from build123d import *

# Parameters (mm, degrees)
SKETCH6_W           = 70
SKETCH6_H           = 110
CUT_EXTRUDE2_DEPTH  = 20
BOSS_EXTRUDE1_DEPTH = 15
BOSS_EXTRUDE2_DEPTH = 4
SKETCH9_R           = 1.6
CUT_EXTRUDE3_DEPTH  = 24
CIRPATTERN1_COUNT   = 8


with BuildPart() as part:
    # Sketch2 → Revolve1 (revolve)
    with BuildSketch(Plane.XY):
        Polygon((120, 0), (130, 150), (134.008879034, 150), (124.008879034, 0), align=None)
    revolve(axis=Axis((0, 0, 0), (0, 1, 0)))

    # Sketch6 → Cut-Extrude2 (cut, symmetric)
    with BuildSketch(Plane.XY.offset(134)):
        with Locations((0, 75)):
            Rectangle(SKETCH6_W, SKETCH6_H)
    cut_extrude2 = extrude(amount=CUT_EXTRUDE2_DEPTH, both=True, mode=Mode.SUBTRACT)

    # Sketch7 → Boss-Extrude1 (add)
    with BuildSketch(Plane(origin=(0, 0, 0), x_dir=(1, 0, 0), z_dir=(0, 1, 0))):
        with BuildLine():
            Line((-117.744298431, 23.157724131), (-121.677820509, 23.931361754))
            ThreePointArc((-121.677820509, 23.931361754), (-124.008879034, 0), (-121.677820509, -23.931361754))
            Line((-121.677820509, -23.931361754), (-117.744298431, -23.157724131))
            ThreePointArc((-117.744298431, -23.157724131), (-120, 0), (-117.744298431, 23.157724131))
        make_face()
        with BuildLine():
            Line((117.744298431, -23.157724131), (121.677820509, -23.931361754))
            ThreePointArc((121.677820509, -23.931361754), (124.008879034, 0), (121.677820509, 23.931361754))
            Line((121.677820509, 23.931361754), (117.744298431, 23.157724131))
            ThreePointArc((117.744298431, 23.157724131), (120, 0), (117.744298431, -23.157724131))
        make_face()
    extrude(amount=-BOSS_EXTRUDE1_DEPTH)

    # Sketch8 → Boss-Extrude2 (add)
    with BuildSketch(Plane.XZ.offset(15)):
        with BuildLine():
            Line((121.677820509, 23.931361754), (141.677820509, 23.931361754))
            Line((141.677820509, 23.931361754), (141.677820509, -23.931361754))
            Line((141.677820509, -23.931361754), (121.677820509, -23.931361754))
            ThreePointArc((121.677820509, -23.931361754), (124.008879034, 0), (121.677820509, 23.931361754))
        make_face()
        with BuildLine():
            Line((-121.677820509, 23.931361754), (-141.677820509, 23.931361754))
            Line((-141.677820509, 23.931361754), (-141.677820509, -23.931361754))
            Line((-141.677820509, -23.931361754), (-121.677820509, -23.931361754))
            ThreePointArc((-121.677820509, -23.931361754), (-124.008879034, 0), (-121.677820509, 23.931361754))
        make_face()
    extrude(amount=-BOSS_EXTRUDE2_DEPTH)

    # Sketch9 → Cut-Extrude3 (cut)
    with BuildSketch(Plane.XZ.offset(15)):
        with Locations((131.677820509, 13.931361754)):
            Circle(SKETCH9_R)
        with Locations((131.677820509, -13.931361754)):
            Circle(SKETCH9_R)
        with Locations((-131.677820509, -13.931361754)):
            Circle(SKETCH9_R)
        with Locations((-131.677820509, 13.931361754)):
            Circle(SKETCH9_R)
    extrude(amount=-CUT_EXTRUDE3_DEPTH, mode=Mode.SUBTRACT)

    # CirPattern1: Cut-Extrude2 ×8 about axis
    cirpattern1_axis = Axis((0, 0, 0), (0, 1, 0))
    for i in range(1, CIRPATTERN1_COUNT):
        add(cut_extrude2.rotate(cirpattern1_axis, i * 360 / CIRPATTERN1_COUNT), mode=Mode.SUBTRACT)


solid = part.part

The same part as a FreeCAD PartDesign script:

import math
import FreeCAD as App
import Part
import Sketcher
Q = App.Units.Quantity


def add_polygon(sketch, points):
    """Adds a closed chain of lines whose ends are joined by coincident constraints."""
    first, n = sketch.GeometryCount, len(points)
    for a, b in zip(points, points[1:] + points[:1]):
        sketch.addGeometry(Part.LineSegment(App.Vector(*a, 0), App.Vector(*b, 0)), False)
    for i in range(n):
        sketch.addConstraint(Sketcher.Constraint("Coincident", first + i, 2, first + (i + 1) % n, 1))

doc = App.newDocument("Part")
body = doc.addObject("PartDesign::Body", "Body")

sketch1 = body.newObject("Sketcher::SketchObject", "Sketch")
sketch1.AttachmentSupport = (doc.getObject("XY_Plane"), [""])
sketch1.MapMode = "FlatFace"
add_polygon(sketch1, [(130, 150), (120, 0), (124.008879, 0), (134.008879, 150)])
sketch1.addConstraint(Sketcher.Constraint("Horizontal", 1))
sketch1.addConstraint(Sketcher.Constraint("Horizontal", 3))
sketch1.addConstraint(Sketcher.Constraint("PointOnObject", 0, 2, -1))
sketch1.addConstraint(Sketcher.Constraint("Parallel", 0, 2))
sketch1.addConstraint(Sketcher.Constraint("DistanceX", -1, 1, 0, 2, Q("120 mm")))
sketch1.addConstraint(Sketcher.Constraint("DistanceY", -1, 1, 2, 2, Q("150 mm")))
sketch1.addConstraint(Sketcher.Constraint("DistanceX", -1, 1, 3, 2, Q("130 mm")))
sketch1.addConstraint(Sketcher.Constraint("DistanceX", 1, 1, 1, 2, Q("4.008879 mm")))
revolution = body.newObject("PartDesign::Revolution", "Revolution")
revolution.Profile = sketch1
revolution.ReferenceAxis = (sketch1, ["V_Axis"])
revolution.Angle = 360

sketch2 = body.newObject("Sketcher::SketchObject", "Sketch001")
sketch2.AttachmentSupport = (doc.getObject("XY_Plane"), [""])
sketch2.MapMode = "FlatFace"
sketch2.AttachmentOffset = App.Placement(App.Vector(0, 0, 134), App.Rotation())
add_polygon(sketch2, [(-35, 130), (-35, 20), (35, 20), (35, 130)])
sketch2.addConstraint(Sketcher.Constraint("Vertical", 0))
sketch2.addConstraint(Sketcher.Constraint("Horizontal", 1))
sketch2.addConstraint(Sketcher.Constraint("Vertical", 2))
sketch2.addConstraint(Sketcher.Constraint("Horizontal", 3))
sketch2.addConstraint(Sketcher.Constraint("DistanceX", 1, 1, 1, 2, Q("70 mm")))
sketch2.addConstraint(Sketcher.Constraint("DistanceY", 0, 2, 0, 1, Q("110 mm")))
sketch2.addConstraint(Sketcher.Constraint("DistanceX", 0, 2, -1, 1, Q("35 mm")))
sketch2.addConstraint(Sketcher.Constraint("DistanceY", -1, 1, 0, 2, Q("20 mm")))
pocket1 = body.newObject("PartDesign::Pocket", "Pocket")
pocket1.Profile = sketch2
pocket1.Length = 40
pocket1.Midplane = True

sketch3 = body.newObject("Sketcher::SketchObject", "Sketch002")
sketch3.AttachmentSupport = (doc.getObject("XZ_Plane"), [""])
sketch3.MapMode = "FlatFace"
sketch3.addGeometry(Part.LineSegment(App.Vector(-117.744298, -23.157724, 0), App.Vector(-121.677821, -23.931362, 0)), False)
sketch3.addGeometry(Part.ArcOfCircle(Part.Circle(App.Vector(0, 0, 0), App.Vector(0, 0, 1), 124.008879), math.radians(168.873195), math.radians(191.126805)), False)
sketch3.addGeometry(Part.LineSegment(App.Vector(-121.677821, 23.931362, 0), App.Vector(-117.744298, 23.157724, 0)), False)
sketch3.addGeometry(Part.ArcOfCircle(Part.Circle(App.Vector(0, 0, 0), App.Vector(0, 0, 1), 120), math.radians(168.873195), math.radians(191.126805)), False)
sketch3.addGeometry(Part.LineSegment(App.Vector(117.744298, 23.157724, 0), App.Vector(121.677821, 23.931362, 0)), False)
sketch3.addGeometry(Part.ArcOfCircle(Part.Circle(App.Vector(0, 0, 0), App.Vector(0, 0, 1), 124.008879), math.radians(-11.126805), math.radians(11.126805)), False)
sketch3.addGeometry(Part.LineSegment(App.Vector(121.677821, -23.931362, 0), App.Vector(117.744298, -23.157724, 0)), False)
sketch3.addGeometry(Part.ArcOfCircle(Part.Circle(App.Vector(0, 0, 0), App.Vector(0, 0, 1), 120), math.radians(-11.126805), math.radians(11.126805)), False)
sketch3.addConstraint(Sketcher.Constraint("Coincident", 0, 2, 1, 2))
sketch3.addConstraint(Sketcher.Constraint("Coincident", 1, 1, 2, 1))
sketch3.addConstraint(Sketcher.Constraint("Coincident", 2, 2, 3, 1))
sketch3.addConstraint(Sketcher.Constraint("Coincident", 3, 2, 0, 1))
sketch3.addConstraint(Sketcher.Constraint("Coincident", 4, 2, 5, 2))
sketch3.addConstraint(Sketcher.Constraint("Coincident", 5, 1, 6, 1))
sketch3.addConstraint(Sketcher.Constraint("Coincident", 6, 2, 7, 1))
sketch3.addConstraint(Sketcher.Constraint("Coincident", 7, 2, 4, 1))
sketch3.addConstraint(Sketcher.Constraint("Coincident", 1, 3, -1, 1))
sketch3.addConstraint(Sketcher.Constraint("Coincident", 3, 3, -1, 1))
sketch3.addConstraint(Sketcher.Constraint("Coincident", 5, 3, -1, 1))
sketch3.addConstraint(Sketcher.Constraint("Coincident", 7, 3, -1, 1))
sketch3.addConstraint(Sketcher.Constraint("Equal", 1, 5))
sketch3.addConstraint(Sketcher.Constraint("Equal", 3, 7))
sketch3.addConstraint(Sketcher.Constraint("Parallel", 0, 4))
sketch3.addConstraint(Sketcher.Constraint("Parallel", 2, 6))
sketch3.addConstraint(Sketcher.Constraint("Horizontal", 1, 1, 4, 2))
sketch3.addConstraint(Sketcher.Constraint("Horizontal", 0, 2, 5, 1))
sketch3.addConstraint(Sketcher.Constraint("Horizontal", 3, 2, 6, 2))
sketch3.addConstraint(Sketcher.Constraint("Vertical", 0, 2, 1, 1))
sketch3.addConstraint(Sketcher.Constraint("Radius", 3, Q("120 mm")))
sketch3.addConstraint(Sketcher.Constraint("Radius", 1, Q("124.008879 mm")))
sketch3.addConstraint(Sketcher.Constraint("DistanceX", 2, 2, -1, 1, Q("117.744298 mm")))
sketch3.addConstraint(Sketcher.Constraint("DistanceX", 0, 2, -1, 1, Q("121.677821 mm")))
pad1 = body.newObject("PartDesign::Pad", "Pad")
pad1.Profile = sketch3
pad1.Length = 15

sketch4 = body.newObject("Sketcher::SketchObject", "Sketch003")
sketch4.AttachmentSupport = (doc.getObject("XZ_Plane"), [""])
sketch4.MapMode = "FlatFace"
sketch4.AttachmentOffset = App.Placement(App.Vector(0, 0, 15), App.Rotation())
sketch4.addGeometry(Part.LineSegment(App.Vector(141.677821, 23.931362, 0), App.Vector(121.677821, 23.931362, 0)), False)
sketch4.addGeometry(Part.ArcOfCircle(Part.Circle(App.Vector(0, 0, 0), App.Vector(0, 0, 1), 124.008879), math.radians(-11.126805), math.radians(11.126805)), False)
sketch4.addGeometry(Part.LineSegment(App.Vector(121.677821, -23.931362, 0), App.Vector(141.677821, -23.931362, 0)), False)
sketch4.addGeometry(Part.LineSegment(App.Vector(141.677821, -23.931362, 0), App.Vector(141.677821, 23.931362, 0)), False)
sketch4.addGeometry(Part.LineSegment(App.Vector(-121.677821, 23.931362, 0), App.Vector(-141.677821, 23.931362, 0)), False)
sketch4.addGeometry(Part.LineSegment(App.Vector(-141.677821, 23.931362, 0), App.Vector(-141.677821, -23.931362, 0)), False)
sketch4.addGeometry(Part.LineSegment(App.Vector(-141.677821, -23.931362, 0), App.Vector(-121.677821, -23.931362, 0)), False)
sketch4.addGeometry(Part.ArcOfCircle(Part.Circle(App.Vector(0, 0, 0), App.Vector(0, 0, 1), 124.008879), math.radians(168.873195), math.radians(191.126805)), False)
sketch4.addConstraint(Sketcher.Constraint("Coincident", 0, 2, 1, 2))
sketch4.addConstraint(Sketcher.Constraint("Coincident", 1, 1, 2, 1))
sketch4.addConstraint(Sketcher.Constraint("Coincident", 2, 2, 3, 1))
sketch4.addConstraint(Sketcher.Constraint("Coincident", 3, 2, 0, 1))
sketch4.addConstraint(Sketcher.Constraint("Coincident", 4, 2, 5, 1))
sketch4.addConstraint(Sketcher.Constraint("Coincident", 5, 2, 6, 1))
sketch4.addConstraint(Sketcher.Constraint("Coincident", 6, 2, 7, 2))
sketch4.addConstraint(Sketcher.Constraint("Coincident", 7, 1, 4, 1))
sketch4.addConstraint(Sketcher.Constraint("Horizontal", 0))
sketch4.addConstraint(Sketcher.Constraint("Horizontal", 2))
sketch4.addConstraint(Sketcher.Constraint("Vertical", 3))
sketch4.addConstraint(Sketcher.Constraint("Horizontal", 4))
sketch4.addConstraint(Sketcher.Constraint("Vertical", 5))
sketch4.addConstraint(Sketcher.Constraint("Horizontal", 6))
sketch4.addConstraint(Sketcher.Constraint("Coincident", 1, 3, -1, 1))
sketch4.addConstraint(Sketcher.Constraint("Coincident", 7, 3, -1, 1))
sketch4.addConstraint(Sketcher.Constraint("Equal", 1, 7))
sketch4.addConstraint(Sketcher.Constraint("Symmetric", 2, 2, 4, 2, -1, 1))
sketch4.addConstraint(Sketcher.Constraint("Horizontal", 3, 2, 4, 2))
sketch4.addConstraint(Sketcher.Constraint("Horizontal", 2, 2, 5, 2))
sketch4.addConstraint(Sketcher.Constraint("DistanceX", 0, 2, 0, 1, Q("20 mm")))
sketch4.addConstraint(Sketcher.Constraint("Radius", 1, Q("124.008879 mm")))
sketch4.addConstraint(Sketcher.Constraint("DistanceY", 3, 1, 3, 2, Q("47.862724 mm")))
pad2 = body.newObject("PartDesign::Pad", "Pad001")
pad2.Profile = sketch4
pad2.Length = 4
pad2.Reversed = True

sketch5 = body.newObject("Sketcher::SketchObject", "Sketch004")
sketch5.AttachmentSupport = (doc.getObject("XZ_Plane"), [""])
sketch5.MapMode = "FlatFace"
sketch5.AttachmentOffset = App.Placement(App.Vector(0, 0, 15), App.Rotation())
sketch5.addGeometry(Part.Circle(App.Vector(131.677821, 13.931362, 0), App.Vector(0, 0, 1), 1.6), False)
sketch5.addGeometry(Part.Circle(App.Vector(131.677821, -13.931362, 0), App.Vector(0, 0, 1), 1.6), False)
sketch5.addGeometry(Part.Circle(App.Vector(-131.677821, -13.931362, 0), App.Vector(0, 0, 1), 1.6), False)
sketch5.addGeometry(Part.Circle(App.Vector(-131.677821, 13.931362, 0), App.Vector(0, 0, 1), 1.6), False)
sketch5.addConstraint(Sketcher.Constraint("Equal", 0, 1))
sketch5.addConstraint(Sketcher.Constraint("Equal", 1, 2))
sketch5.addConstraint(Sketcher.Constraint("Equal", 2, 3))
sketch5.addConstraint(Sketcher.Constraint("Symmetric", 0, 3, 2, 3, -1, 1))
sketch5.addConstraint(Sketcher.Constraint("Symmetric", 1, 3, 3, 3, -1, 1))
sketch5.addConstraint(Sketcher.Constraint("Symmetric", 1, 3, 2, 3, -2))
sketch5.addConstraint(Sketcher.Constraint("Diameter", 0, Q("3.2 mm")))
sketch5.addConstraint(Sketcher.Constraint("DistanceX", -1, 1, 0, 3, Q("131.677821 mm")))
sketch5.addConstraint(Sketcher.Constraint("DistanceY", -1, 1, 0, 3, Q("13.931362 mm")))
pocket2 = body.newObject("PartDesign::Pocket", "Pocket001")
pocket2.Profile = sketch5
pocket2.Length = 24
doc.recompute()

polarpattern = body.newObject("PartDesign::PolarPattern", "PolarPattern")
polarpattern.Originals = [pocket1]
polarpattern.Axis = (doc.getObject("Y_Axis"), [""])
polarpattern.Angle = 360
polarpattern.Occurrences = 8
body.Tip = polarpattern

doc.recompute()
